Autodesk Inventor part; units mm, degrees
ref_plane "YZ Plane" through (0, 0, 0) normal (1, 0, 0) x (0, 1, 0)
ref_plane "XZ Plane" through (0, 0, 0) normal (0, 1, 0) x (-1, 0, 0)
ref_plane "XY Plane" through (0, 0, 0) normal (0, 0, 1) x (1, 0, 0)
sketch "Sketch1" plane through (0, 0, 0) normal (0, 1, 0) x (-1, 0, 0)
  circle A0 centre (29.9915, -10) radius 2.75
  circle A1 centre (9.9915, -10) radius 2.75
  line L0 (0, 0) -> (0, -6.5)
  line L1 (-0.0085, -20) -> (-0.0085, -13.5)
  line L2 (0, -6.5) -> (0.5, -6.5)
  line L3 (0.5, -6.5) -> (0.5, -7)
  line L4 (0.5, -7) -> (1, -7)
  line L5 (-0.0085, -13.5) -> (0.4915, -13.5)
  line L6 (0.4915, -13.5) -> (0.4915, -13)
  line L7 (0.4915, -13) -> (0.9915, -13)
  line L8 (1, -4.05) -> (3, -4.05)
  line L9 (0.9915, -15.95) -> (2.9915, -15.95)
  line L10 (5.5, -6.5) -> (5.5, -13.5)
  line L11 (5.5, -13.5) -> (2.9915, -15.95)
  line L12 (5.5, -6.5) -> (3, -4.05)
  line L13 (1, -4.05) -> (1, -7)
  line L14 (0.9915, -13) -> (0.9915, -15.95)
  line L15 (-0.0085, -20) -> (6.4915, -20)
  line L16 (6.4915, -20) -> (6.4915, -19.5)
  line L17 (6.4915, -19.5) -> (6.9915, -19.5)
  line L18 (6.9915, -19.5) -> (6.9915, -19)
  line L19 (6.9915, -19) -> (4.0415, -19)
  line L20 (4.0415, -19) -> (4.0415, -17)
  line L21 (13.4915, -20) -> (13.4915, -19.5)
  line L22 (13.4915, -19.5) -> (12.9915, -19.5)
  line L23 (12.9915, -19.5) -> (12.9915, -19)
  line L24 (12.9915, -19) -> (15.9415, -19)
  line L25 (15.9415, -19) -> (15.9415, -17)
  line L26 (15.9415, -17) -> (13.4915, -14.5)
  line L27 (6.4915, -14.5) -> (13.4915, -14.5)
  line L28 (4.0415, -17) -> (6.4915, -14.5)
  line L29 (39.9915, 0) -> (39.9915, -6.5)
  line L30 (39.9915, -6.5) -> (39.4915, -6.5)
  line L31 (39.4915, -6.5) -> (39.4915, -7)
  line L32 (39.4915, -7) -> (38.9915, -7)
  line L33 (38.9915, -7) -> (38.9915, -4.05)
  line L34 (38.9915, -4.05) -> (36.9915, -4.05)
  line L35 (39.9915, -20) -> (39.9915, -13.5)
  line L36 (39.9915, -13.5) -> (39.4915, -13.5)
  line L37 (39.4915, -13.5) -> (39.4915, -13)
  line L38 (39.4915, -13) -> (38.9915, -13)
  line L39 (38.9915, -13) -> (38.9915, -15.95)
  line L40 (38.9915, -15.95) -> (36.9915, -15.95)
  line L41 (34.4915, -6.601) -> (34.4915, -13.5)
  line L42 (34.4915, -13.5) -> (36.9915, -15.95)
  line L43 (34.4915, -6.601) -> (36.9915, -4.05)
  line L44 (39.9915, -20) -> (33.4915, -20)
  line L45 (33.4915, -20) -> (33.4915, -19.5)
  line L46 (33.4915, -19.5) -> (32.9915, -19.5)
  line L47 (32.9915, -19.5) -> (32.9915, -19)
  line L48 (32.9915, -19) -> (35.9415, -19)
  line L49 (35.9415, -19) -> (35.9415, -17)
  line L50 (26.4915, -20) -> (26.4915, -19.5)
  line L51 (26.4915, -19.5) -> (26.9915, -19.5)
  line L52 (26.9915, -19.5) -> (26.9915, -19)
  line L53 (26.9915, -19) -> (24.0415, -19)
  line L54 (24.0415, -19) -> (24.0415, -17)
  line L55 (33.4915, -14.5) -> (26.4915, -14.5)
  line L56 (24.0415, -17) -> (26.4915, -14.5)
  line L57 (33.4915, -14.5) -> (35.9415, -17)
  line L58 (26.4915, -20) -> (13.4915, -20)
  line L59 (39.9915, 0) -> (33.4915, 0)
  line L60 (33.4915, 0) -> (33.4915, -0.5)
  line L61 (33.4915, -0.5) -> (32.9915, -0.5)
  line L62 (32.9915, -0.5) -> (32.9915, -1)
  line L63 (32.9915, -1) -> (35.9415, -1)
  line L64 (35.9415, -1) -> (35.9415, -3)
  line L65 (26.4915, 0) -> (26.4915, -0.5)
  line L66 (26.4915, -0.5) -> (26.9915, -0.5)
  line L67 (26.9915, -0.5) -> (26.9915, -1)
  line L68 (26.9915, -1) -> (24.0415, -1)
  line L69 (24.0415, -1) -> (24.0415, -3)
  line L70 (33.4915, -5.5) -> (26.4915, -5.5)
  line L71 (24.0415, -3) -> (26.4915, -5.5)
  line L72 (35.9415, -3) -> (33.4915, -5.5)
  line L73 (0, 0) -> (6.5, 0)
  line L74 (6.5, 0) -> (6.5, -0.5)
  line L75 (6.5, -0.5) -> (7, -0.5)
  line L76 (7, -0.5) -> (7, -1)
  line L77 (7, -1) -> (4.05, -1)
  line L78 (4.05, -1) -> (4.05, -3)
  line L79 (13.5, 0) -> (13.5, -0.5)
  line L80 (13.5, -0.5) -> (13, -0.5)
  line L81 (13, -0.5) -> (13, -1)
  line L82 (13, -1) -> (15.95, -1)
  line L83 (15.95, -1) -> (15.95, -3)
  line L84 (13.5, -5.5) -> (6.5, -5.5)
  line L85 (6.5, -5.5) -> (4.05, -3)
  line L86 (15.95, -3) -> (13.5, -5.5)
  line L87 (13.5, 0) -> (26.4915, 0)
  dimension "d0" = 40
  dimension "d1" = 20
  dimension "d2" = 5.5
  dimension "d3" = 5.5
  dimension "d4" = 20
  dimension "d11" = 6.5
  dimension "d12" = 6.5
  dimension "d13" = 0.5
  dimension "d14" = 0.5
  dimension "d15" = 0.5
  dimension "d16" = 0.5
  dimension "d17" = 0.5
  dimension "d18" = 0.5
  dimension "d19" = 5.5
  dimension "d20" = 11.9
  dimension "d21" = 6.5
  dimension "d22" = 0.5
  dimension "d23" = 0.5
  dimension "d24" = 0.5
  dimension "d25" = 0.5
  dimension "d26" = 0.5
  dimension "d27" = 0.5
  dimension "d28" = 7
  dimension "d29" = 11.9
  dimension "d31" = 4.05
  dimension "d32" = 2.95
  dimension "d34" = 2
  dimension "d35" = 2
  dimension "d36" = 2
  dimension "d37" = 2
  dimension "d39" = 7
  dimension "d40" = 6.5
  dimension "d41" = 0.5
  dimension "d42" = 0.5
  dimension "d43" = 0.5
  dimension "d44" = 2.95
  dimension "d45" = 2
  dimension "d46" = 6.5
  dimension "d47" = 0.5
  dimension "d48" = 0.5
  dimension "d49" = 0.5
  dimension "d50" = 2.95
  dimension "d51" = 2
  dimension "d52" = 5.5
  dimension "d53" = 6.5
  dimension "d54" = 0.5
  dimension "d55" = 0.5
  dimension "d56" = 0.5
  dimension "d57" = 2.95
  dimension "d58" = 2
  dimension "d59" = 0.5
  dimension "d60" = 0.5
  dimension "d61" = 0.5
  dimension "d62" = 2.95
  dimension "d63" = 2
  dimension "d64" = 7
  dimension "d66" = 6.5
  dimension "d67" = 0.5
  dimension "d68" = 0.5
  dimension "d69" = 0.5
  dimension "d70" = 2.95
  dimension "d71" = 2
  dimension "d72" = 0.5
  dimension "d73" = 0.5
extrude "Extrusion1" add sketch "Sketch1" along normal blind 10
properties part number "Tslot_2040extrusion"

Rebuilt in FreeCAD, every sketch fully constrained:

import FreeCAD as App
import Part
import Sketcher


def add_polygon(sketch, points):
    """Adds a closed chain of lines whose ends are joined by coincident constraints."""
    first, n = sketch.GeometryCount, len(points)
    for a, b in zip(points, points[1:] + points[:1]):
        sketch.addGeometry(Part.LineSegment(App.Vector(*a, 0), App.Vector(*b, 0)), False)
    for i in range(n):
        sketch.addConstraint(Sketcher.Constraint("Coincident", first + i, 2, first + (i + 1) % n, 1))

doc = App.newDocument("Part")
body = doc.addObject("PartDesign::Body", "Body")

sketch1 = doc.addObject("Sketcher::SketchObject", "Sketch")
body.addObject(sketch1)
sketch1.AttachmentSupport = (doc.XZ_Plane, [""])
sketch1.MapMode = "FlatFace"
add_polygon(sketch1, [(-6.5, 0), (0, 0), (0, -6.5), (-0.5, -6.5), (-0.5, -7), (-1, -7), (-1, -4), (-3, -4), (-5.5, -6.5), (-5.5, -13.5), (-3, -15.9), (-1, -15.9), (-1, -13), (-0.5, -13), (-0.5, -13.5), (0, -13.5), (0, -20), (-6.5, -20), (-6.5, -19.5), (-7, -19.5), (-7, -19), (-4, -19), (-4, -17), (-6.5, -14.5), (-13.5, -14.5), (-15.9, -17), (-15.9, -19), (-13, -19), (-13, -19.5), (-13.5, -19.5), (-13.5, -20), (-26.5, -20), (-26.5, -19.5), (-27, -19.5), (-27, -19), (-24, -19), (-24, -17), (-26.5, -14.5), (-33.5, -14.5), (-35.9, -17), (-35.9, -19), (-33, -19), (-33, -19.5), (-33.5, -19.5), (-33.5, -20), (-40, -20), (-40, -13.5), (-39.5, -13.5), (-39.5, -13), (-39, -13), (-39, -15.9), (-37, -15.9), (-34.5, -13.5), (-34.5, -6.6), (-37, -4), (-39, -4), (-39, -7), (-39.5, -7), (-39.5, -6.5), (-40, -6.5), (-40, 0), (-33.5, 0), (-33.5, -0.5), (-33, -0.5), (-33, -1), (-35.9, -1), (-35.9, -3), (-33.5, -5.5), (-26.5, -5.5), (-24, -3), (-24, -1), (-27, -1), (-27, -0.5), (-26.5, -0.5), (-26.5, 0), (-13.5, 0), (-13.5, -0.5), (-13, -0.5), (-13, -1), (-15.9, -1), (-15.9, -3), (-13.5, -5.5), (-6.5, -5.5), (-4, -3), (-4, -1), (-7, -1), (-7, -0.5), (-6.5, -0.5)])
sketch1.addGeometry(Part.Circle(App.Vector(-10, -10, 0), App.Vector(0, 0, 1), 2.8), False)
sketch1.addGeometry(Part.Circle(App.Vector(-30, -10, 0), App.Vector(0, 0, 1), 2.8), False)
sketch1.addConstraint([
    Sketcher.Constraint("Horizontal", 0),
    Sketcher.Constraint("Vertical", 1),
    Sketcher.Constraint("Horizontal", 2),
    Sketcher.Constraint("Vertical", 3),
    Sketcher.Constraint("Horizontal", 4),
    Sketcher.Constraint("Vertical", 5),
    Sketcher.Constraint("Horizontal", 6),
    Sketcher.Constraint("Vertical", 8),
    Sketcher.Constraint("Horizontal", 10),
    Sketcher.Constraint("Vertical", 11),
    Sketcher.Constraint("Horizontal", 12),
    Sketcher.Constraint("Vertical", 13),
    Sketcher.Constraint("Horizontal", 14),
    Sketcher.Constraint("Vertical", 15),
    Sketcher.Constraint("Horizontal", 16),
    Sketcher.Constraint("Vertical", 17),
    Sketcher.Constraint("Horizontal", 18),
    Sketcher.Constraint("Vertical", 19),
    Sketcher.Constraint("Horizontal", 20),
    Sketcher.Constraint("Vertical", 21),
    Sketcher.Constraint("Horizontal", 23),
    Sketcher.Constraint("Vertical", 25),
    Sketcher.Constraint("Horizontal", 26),
    Sketcher.Constraint("Vertical", 27),
    Sketcher.Constraint("Horizontal", 28),
    Sketcher.Constraint("Vertical", 29),
    Sketcher.Constraint("Horizontal", 30),
    Sketcher.Constraint("Vertical", 31),
    Sketcher.Constraint("Horizontal", 32),
    Sketcher.Constraint("Vertical", 33),
    Sketcher.Constraint("Horizontal", 34),
    Sketcher.Constraint("Vertical", 35),
    Sketcher.Constraint("Horizontal", 37),
    Sketcher.Constraint("Vertical", 39),
    Sketcher.Constraint("Horizontal", 40),
    Sketcher.Constraint("Vertical", 41),
    Sketcher.Constraint("Horizontal", 42),
    Sketcher.Constraint("Vertical", 43),
    Sketcher.Constraint("Horizontal", 44),
    Sketcher.Constraint("Vertical", 45),
    Sketcher.Constraint("Horizontal", 46),
    Sketcher.Constraint("Vertical", 47),
    Sketcher.Constraint("Horizontal", 48),
    Sketcher.Constraint("Vertical", 49),
    Sketcher.Constraint("Horizontal", 50),
    Sketcher.Constraint("Vertical", 52),
    Sketcher.Constraint("Horizontal", 54),
    Sketcher.Constraint("Vertical", 55),
    Sketcher.Constraint("Horizontal", 56),
    Sketcher.Constraint("Vertical", 57),
    Sketcher.Constraint("Horizontal", 58),
    Sketcher.Constraint("Vertical", 59),
    Sketcher.Constraint("Horizontal", 60),
    Sketcher.Constraint("Vertical", 61),
    Sketcher.Constraint("Horizontal", 62),
    Sketcher.Constraint("Vertical", 63),
    Sketcher.Constraint("Horizontal", 64),
    Sketcher.Constraint("Vertical", 65),
    Sketcher.Constraint("Horizontal", 67),
    Sketcher.Constraint("Vertical", 69),
    Sketcher.Constraint("Horizontal", 70),
    Sketcher.Constraint("Vertical", 71),
    Sketcher.Constraint("Horizontal", 72),
    Sketcher.Constraint("Vertical", 73),
    Sketcher.Constraint("Horizontal", 74),
    Sketcher.Constraint("Vertical", 75),
    Sketcher.Constraint("Horizontal", 76),
    Sketcher.Constraint("Vertical", 77),
    Sketcher.Constraint("Horizontal", 78),
    Sketcher.Constraint("Vertical", 79),
    Sketcher.Constraint("Horizontal", 81),
    Sketcher.Constraint("Vertical", 83),
    Sketcher.Constraint("Horizontal", 84),
    Sketcher.Constraint("Vertical", 85),
    Sketcher.Constraint("Horizontal", 86),
    Sketcher.Constraint("Vertical", 87),
    Sketcher.Constraint("Coincident", 0, 2, -1, 1),
    Sketcher.Constraint("Equal", 88, 89),
    Sketcher.Constraint("PointOnObject", 59, 2, -1),
    Sketcher.Constraint("PointOnObject", 73, 2, -1),
    Sketcher.Constraint("Perpendicular", 7, 22),
    Sketcher.Constraint("Parallel", 22, 36),
    Sketcher.Constraint("Parallel", 24, 38),
    Sketcher.Constraint("Perpendicular", 36, 51),
    Sketcher.Constraint("Perpendicular", 51, 53),
    Sketcher.Constraint("Parallel", 53, 66),
    Sketcher.Constraint("Parallel", 38, 68),
    Sketcher.Constraint("Parallel", 66, 80),
    Sketcher.Constraint("Parallel", 68, 82),
    Sketcher.Constraint("Horizontal", 88, 3, 89, 3),
    Sketcher.Constraint("Horizontal", 2, 2, 7, 2),
    Sketcher.Constraint("Horizontal", 8, 2, 13, 2),
    Sketcher.Constraint("Horizontal", 21, 2, 24, 2),
    Sketcher.Constraint("Horizontal", 20, 2, 25, 2),
    Sketcher.Constraint("Horizontal", 18, 2, 27, 2),
    Sketcher.Constraint("Horizontal", 16, 2, 29, 2),
    Sketcher.Constraint("Horizontal", 28, 2, 31, 2),
    Sketcher.Constraint("Horizontal", 26, 2, 33, 2),
    Sketcher.Constraint("Horizontal", 24, 2, 35, 2),
    Sketcher.Constraint("Horizontal", 23, 2, 36, 2),
    Sketcher.Constraint("Horizontal", 35, 2, 38, 2),
    Sketcher.Constraint("Horizontal", 34, 2, 39, 2),
    Sketcher.Constraint("Horizontal", 32, 2, 41, 2),
    Sketcher.Constraint("Horizontal", 30, 2, 43, 2),
    Sketcher.Constraint("Horizontal", 14, 2, 45, 2),
    Sketcher.Constraint("Horizontal", 12, 2, 47, 2),
    Sketcher.Constraint("Horizontal", 10, 2, 49, 2),
    Sketcher.Constraint("Horizontal", 46, 2, 51, 2),
    Sketcher.Constraint("Horizontal", 6, 2, 53, 2),
    Sketcher.Constraint("Horizontal", 4, 2, 55, 2),
    Sketcher.Constraint("Horizontal", 7, 2, 57, 2),
    Sketcher.Constraint("Horizontal", 65, 2, 68, 2),
    Sketcher.Constraint("Horizontal", 64, 2, 69, 2),
    Sketcher.Constraint("Horizontal", 62, 2, 71, 2),
    Sketcher.Constraint("Horizontal", 72, 2, 75, 2),
    Sketcher.Constraint("Horizontal", 70, 2, 77, 2),
    Sketcher.Constraint("Horizontal", 68, 2, 79, 2),
    Sketcher.Constraint("Horizontal", 67, 2, 80, 2),
    Sketcher.Constraint("Horizontal", 79, 2, 82, 2),
    Sketcher.Constraint("Horizontal", 78, 2, 83, 2),
    Sketcher.Constraint("Horizontal", 76, 2, 85, 2),
    Sketcher.Constraint("Vertical", 17, 2, 22, 2),
    Sketcher.Constraint("Vertical", 23, 2, 28, 2),
    Sketcher.Constraint("Vertical", 31, 2, 36, 2),
    Sketcher.Constraint("Vertical", 37, 2, 42, 2),
    Sketcher.Constraint("Vertical", 50, 2, 53, 2),
    Sketcher.Constraint("Vertical", 49, 2, 54, 2),
    Sketcher.Constraint("Vertical", 47, 2, 56, 2),
    Sketcher.Constraint("Vertical", 45, 2, 58, 2),
    Sketcher.Constraint("Vertical", 43, 2, 60, 2),
    Sketcher.Constraint("Vertical", 41, 2, 62, 2),
    Sketcher.Constraint("Vertical", 39, 2, 64, 2),
    Sketcher.Constraint("Vertical", 61, 2, 66, 2),
    Sketcher.Constraint("Vertical", 36, 2, 67, 2),
    Sketcher.Constraint("Vertical", 35, 2, 68, 2),
    Sketcher.Constraint("Vertical", 33, 2, 70, 2),
    Sketcher.Constraint("Vertical", 67, 2, 72, 2),
    Sketcher.Constraint("Vertical", 75, 2, 80, 2),
    Sketcher.Constraint("Vertical", 81, 2, 86, 2),
    Sketcher.Constraint("Equal", 2, 4),
    Sketcher.Constraint("Equal", 6, 10),
    Sketcher.Constraint("Equal", 4, 12),
    Sketcher.Constraint("Equal", 12, 14),
    Sketcher.Constraint("Equal", 0, 16),
    Sketcher.Constraint("Equal", 14, 18),
    Sketcher.Constraint("Equal", 20, 26),
    Sketcher.Constraint("Equal", 28, 32),
    Sketcher.Constraint("Equal", 23, 37),
    Sketcher.Constraint("Equal", 34, 40),
    Sketcher.Constraint("Equal", 16, 44),
    Sketcher.Constraint("Equal", 42, 46),
    Sketcher.Constraint("Equal", 46, 48),
    Sketcher.Constraint("Equal", 10, 50),
    Sketcher.Constraint("Equal", 72, 76),
    Sketcher.Constraint("Equal", 67, 81),
    Sketcher.Constraint("Equal", 78, 84),
    Sketcher.Constraint("Equal", 60, 1),
    Sketcher.Constraint("Equal", 86, 3),
    Sketcher.Constraint("Equal", 84, 5),
    Sketcher.Constraint("Equal", 81, 8),
    Sketcher.Constraint("Equal", 5, 11),
    Sketcher.Constraint("Equal", 3, 13),
    Sketcher.Constraint("Equal", 1, 15),
    Sketcher.Constraint("Equal", 13, 17),
    Sketcher.Constraint("Equal", 17, 19),
    Sketcher.Constraint("Equal", 54, 21),
    Sketcher.Constraint("Equal", 57, 61),
    Sketcher.Constraint("Equal", 61, 63),
    Sketcher.Constraint("Equal", 39, 65),
    Sketcher.Constraint("Diameter", 88, 5.5),
    Sketcher.Constraint("DistanceX", 6, 2, 6, 1, 2.0),
    Sketcher.Constraint("DistanceX", 23, 2, 23, 1, 7.0),
    Sketcher.Constraint("DistanceX", 0, 1, 0, 2, 6.5),
    Sketcher.Constraint("DistanceX", 2, 2, 2, 1, 0.5),
    Sketcher.Constraint("DistanceX", 20, 1, 20, 2, 2.95),
    Sketcher.Constraint("DistanceX", 7, 2, -1, 1, 5.5),
    Sketcher.Constraint("DistanceX", 30, 2, 30, 1, 13.0),
    Sketcher.Constraint("DistanceY", 88, 3, -1, 1, 10.0),
    Sketcher.Constraint("DistanceX", 74, 1, 74, 2, 12.9915),
    Sketcher.Constraint("DistanceX", 88, 3, -1, 1, 9.9915),
    Sketcher.Constraint("DistanceX", 89, 3, -1, 1, 29.9915),
])
pad1 = doc.addObject("PartDesign::Pad", "Pad")
body.addObject(pad1)
pad1.Profile = sketch1
pad1.Length = 10
pad1.Reversed = True

doc.recompute()
